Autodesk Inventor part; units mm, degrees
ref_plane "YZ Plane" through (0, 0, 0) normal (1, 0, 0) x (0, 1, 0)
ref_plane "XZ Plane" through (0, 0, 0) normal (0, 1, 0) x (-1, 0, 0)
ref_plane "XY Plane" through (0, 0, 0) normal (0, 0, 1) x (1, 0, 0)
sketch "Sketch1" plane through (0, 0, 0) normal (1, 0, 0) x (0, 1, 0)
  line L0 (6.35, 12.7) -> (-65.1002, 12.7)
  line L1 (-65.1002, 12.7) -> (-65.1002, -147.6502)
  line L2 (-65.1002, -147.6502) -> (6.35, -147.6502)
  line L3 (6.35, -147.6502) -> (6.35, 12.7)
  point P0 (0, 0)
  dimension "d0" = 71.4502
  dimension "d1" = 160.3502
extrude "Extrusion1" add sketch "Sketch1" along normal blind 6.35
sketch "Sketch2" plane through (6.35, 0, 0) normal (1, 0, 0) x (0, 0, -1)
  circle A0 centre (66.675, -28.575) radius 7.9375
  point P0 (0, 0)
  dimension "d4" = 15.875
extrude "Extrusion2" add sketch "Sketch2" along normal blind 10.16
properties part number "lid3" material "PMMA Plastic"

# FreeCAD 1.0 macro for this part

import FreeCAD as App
import Part
import Sketcher

V = App.Vector
Q = App.Units.Quantity


def add_polygon(sketch, points):
    """Adds a closed chain of lines whose ends are joined by coincident constraints."""
    first, n = sketch.GeometryCount, len(points)
    for a, b in zip(points, points[1:] + points[:1]):
        sketch.addGeometry(Part.LineSegment(App.Vector(*a, 0), App.Vector(*b, 0)), False)
    for i in range(n):
        sketch.addConstraint(Sketcher.Constraint("Coincident", first + i, 2, first + (i + 1) % n, 1))

doc = App.newDocument("Part")
params = doc.addObject("Spreadsheet::Sheet", "Params")
for row, (alias, value) in enumerate([
    ("sketch1_width", "2.813 in"),
    ("sketch1_height", "6.313 in"),
    ("pad1_length", "0.25 in"),
    ("sketch2_diameter", "0.625 in"),
    ("pad2_length", "0.4 in"),
], start=1):
    params.set(f"A{row}", alias)
    params.set(f"B{row}", "=" + value)
    params.setAlias(f"B{row}", alias)

body = doc.addObject("PartDesign::Body", "Body")

# Sketch on YZ plane
sketch1 = doc.addObject("Sketcher::SketchObject", "Sketch")
body.addObject(sketch1)
sketch1.AttachmentSupport = (doc.YZ_Plane, [""])
sketch1.MapMode = "FlatFace"
add_polygon(sketch1, [(6, -148), (6, 13), (-65, 13), (-65, -148)])  # lines 0-3
sketch1.addConstraint(Sketcher.Constraint("Vertical", 0))
sketch1.addConstraint(Sketcher.Constraint("Horizontal", 1))
sketch1.addConstraint(Sketcher.Constraint("Vertical", 2))
sketch1.addConstraint(Sketcher.Constraint("Horizontal", 3))
sketch1.addConstraint(Sketcher.Constraint("DistanceX", 1, 2, 1, 1, Q("2.813 in")))
sketch1.addConstraint(Sketcher.Constraint("DistanceY", 0, 1, 0, 2, Q("6.313 in")))
sketch1.addConstraint(Sketcher.Constraint("DistanceY", -1, 1, 0, 2, Q("0.5 in")))
sketch1.addConstraint(Sketcher.Constraint("DistanceX", -1, 1, 0, 2, Q("0.25 in")))
sketch1.setExpression("Constraints[8]", "Params.sketch1_width")
sketch1.setExpression("Constraints[9]", "Params.sketch1_height")
pad1 = doc.addObject("PartDesign::Pad", "Pad")
body.addObject(pad1)
pad1.Profile = sketch1
pad1.setExpression("Length", "Params.pad1_length")

# Sketch on YZ plane
sketch2 = doc.addObject("Sketcher::SketchObject", "Sketch001")
body.addObject(sketch2)
sketch2.AttachmentSupport = (doc.YZ_Plane, [""])
sketch2.MapMode = "FlatFace"
sketch2.AttachmentOffset = App.Placement(V(0, 0, 0.25 * 25.4), App.Rotation())
sketch2.addGeometry(Part.Circle(V(-29, -67, 0), V(0, 0, 1), 8), False)
sketch2.addConstraint(Sketcher.Constraint("Diameter", 0, Q("0.625 in")))
sketch2.addConstraint(Sketcher.Constraint("DistanceX", 0, 3, -1, 1, Q("1.125 in")))
sketch2.addConstraint(Sketcher.Constraint("DistanceY", 0, 3, -1, 1, Q("2.625 in")))
sketch2.setExpression("Constraints[0]", "Params.sketch2_diameter")
pad2 = doc.addObject("PartDesign::Pad", "Pad001")
body.addObject(pad2)
pad2.Profile = sketch2
pad2.setExpression("Length", "Params.pad2_length")

doc.recompute()
